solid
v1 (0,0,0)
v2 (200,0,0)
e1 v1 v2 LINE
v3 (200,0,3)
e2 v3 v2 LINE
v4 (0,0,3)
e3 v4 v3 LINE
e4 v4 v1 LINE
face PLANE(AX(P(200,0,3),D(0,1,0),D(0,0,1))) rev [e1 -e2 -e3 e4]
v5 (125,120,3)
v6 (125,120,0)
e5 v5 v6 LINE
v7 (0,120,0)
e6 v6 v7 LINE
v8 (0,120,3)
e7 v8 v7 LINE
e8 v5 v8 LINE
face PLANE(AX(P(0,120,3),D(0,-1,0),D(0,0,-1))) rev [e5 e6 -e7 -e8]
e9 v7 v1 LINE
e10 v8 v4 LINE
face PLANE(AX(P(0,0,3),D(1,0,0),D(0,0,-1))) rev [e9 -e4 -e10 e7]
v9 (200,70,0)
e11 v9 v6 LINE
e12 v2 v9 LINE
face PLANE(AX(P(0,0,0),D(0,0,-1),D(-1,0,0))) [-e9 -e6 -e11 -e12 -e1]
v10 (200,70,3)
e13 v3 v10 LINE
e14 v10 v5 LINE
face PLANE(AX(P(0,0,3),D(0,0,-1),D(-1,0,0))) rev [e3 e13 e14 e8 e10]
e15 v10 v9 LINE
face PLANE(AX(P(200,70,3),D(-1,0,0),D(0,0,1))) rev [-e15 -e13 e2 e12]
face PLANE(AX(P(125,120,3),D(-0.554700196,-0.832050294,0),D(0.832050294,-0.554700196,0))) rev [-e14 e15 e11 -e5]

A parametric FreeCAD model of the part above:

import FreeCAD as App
import Part
import Sketcher
Q = App.Units.Quantity

doc = App.newDocument("Part")
body = doc.addObject("PartDesign::Body", "Body")

# Sketch on XY plane
sketch1 = doc.addObject("Sketcher::SketchObject", "Sketch")
body.addObject(sketch1)
sketch1.AttachmentSupport = (doc.XY_Plane, [""])
sketch1.MapMode = "FlatFace"
sketch1.addGeometry(Part.LineSegment(App.Vector(0, 120, 0), App.Vector(0, 0, 0)), False)
sketch1.addGeometry(Part.LineSegment(App.Vector(0, 0, 0), App.Vector(200, 0, 0)), False)
sketch1.addGeometry(Part.LineSegment(App.Vector(200, 0, 0), App.Vector(200, 70, 0)), False)
sketch1.addGeometry(Part.LineSegment(App.Vector(200, 70, 0), App.Vector(125, 120, 0)), False)
sketch1.addGeometry(Part.LineSegment(App.Vector(125, 120, 0), App.Vector(0, 120, 0)), False)
sketch1.addConstraint(Sketcher.Constraint("Coincident", 0, 2, 1, 1))
sketch1.addConstraint(Sketcher.Constraint("Coincident", 1, 2, 2, 1))
sketch1.addConstraint(Sketcher.Constraint("Coincident", 2, 2, 3, 1))
sketch1.addConstraint(Sketcher.Constraint("Coincident", 3, 2, 4, 1))
sketch1.addConstraint(Sketcher.Constraint("Coincident", 4, 2, 0, 1))
sketch1.addConstraint(Sketcher.Constraint("Vertical", 0))
sketch1.addConstraint(Sketcher.Constraint("Horizontal", 1))
sketch1.addConstraint(Sketcher.Constraint("Vertical", 2))
sketch1.addConstraint(Sketcher.Constraint("Horizontal", 4))
sketch1.addConstraint(Sketcher.Constraint("Coincident", 0, 2, -1, 1))
sketch1.addConstraint(Sketcher.Constraint("DistanceX", 1, 1, 1, 2, Q("200 mm")))
sketch1.addConstraint(Sketcher.Constraint("DistanceX", 4, 2, 4, 1, Q("125 mm")))
sketch1.addConstraint(Sketcher.Constraint("DistanceY", 0, 2, 0, 1, Q("120 mm")))
sketch1.addConstraint(Sketcher.Constraint("DistanceY", 2, 1, 2, 2, Q("70 mm")))
pad1 = doc.addObject("PartDesign::Pad", "Pad")
body.addObject(pad1)
pad1.Profile = sketch1
pad1.Length = 3

doc.recompute()
